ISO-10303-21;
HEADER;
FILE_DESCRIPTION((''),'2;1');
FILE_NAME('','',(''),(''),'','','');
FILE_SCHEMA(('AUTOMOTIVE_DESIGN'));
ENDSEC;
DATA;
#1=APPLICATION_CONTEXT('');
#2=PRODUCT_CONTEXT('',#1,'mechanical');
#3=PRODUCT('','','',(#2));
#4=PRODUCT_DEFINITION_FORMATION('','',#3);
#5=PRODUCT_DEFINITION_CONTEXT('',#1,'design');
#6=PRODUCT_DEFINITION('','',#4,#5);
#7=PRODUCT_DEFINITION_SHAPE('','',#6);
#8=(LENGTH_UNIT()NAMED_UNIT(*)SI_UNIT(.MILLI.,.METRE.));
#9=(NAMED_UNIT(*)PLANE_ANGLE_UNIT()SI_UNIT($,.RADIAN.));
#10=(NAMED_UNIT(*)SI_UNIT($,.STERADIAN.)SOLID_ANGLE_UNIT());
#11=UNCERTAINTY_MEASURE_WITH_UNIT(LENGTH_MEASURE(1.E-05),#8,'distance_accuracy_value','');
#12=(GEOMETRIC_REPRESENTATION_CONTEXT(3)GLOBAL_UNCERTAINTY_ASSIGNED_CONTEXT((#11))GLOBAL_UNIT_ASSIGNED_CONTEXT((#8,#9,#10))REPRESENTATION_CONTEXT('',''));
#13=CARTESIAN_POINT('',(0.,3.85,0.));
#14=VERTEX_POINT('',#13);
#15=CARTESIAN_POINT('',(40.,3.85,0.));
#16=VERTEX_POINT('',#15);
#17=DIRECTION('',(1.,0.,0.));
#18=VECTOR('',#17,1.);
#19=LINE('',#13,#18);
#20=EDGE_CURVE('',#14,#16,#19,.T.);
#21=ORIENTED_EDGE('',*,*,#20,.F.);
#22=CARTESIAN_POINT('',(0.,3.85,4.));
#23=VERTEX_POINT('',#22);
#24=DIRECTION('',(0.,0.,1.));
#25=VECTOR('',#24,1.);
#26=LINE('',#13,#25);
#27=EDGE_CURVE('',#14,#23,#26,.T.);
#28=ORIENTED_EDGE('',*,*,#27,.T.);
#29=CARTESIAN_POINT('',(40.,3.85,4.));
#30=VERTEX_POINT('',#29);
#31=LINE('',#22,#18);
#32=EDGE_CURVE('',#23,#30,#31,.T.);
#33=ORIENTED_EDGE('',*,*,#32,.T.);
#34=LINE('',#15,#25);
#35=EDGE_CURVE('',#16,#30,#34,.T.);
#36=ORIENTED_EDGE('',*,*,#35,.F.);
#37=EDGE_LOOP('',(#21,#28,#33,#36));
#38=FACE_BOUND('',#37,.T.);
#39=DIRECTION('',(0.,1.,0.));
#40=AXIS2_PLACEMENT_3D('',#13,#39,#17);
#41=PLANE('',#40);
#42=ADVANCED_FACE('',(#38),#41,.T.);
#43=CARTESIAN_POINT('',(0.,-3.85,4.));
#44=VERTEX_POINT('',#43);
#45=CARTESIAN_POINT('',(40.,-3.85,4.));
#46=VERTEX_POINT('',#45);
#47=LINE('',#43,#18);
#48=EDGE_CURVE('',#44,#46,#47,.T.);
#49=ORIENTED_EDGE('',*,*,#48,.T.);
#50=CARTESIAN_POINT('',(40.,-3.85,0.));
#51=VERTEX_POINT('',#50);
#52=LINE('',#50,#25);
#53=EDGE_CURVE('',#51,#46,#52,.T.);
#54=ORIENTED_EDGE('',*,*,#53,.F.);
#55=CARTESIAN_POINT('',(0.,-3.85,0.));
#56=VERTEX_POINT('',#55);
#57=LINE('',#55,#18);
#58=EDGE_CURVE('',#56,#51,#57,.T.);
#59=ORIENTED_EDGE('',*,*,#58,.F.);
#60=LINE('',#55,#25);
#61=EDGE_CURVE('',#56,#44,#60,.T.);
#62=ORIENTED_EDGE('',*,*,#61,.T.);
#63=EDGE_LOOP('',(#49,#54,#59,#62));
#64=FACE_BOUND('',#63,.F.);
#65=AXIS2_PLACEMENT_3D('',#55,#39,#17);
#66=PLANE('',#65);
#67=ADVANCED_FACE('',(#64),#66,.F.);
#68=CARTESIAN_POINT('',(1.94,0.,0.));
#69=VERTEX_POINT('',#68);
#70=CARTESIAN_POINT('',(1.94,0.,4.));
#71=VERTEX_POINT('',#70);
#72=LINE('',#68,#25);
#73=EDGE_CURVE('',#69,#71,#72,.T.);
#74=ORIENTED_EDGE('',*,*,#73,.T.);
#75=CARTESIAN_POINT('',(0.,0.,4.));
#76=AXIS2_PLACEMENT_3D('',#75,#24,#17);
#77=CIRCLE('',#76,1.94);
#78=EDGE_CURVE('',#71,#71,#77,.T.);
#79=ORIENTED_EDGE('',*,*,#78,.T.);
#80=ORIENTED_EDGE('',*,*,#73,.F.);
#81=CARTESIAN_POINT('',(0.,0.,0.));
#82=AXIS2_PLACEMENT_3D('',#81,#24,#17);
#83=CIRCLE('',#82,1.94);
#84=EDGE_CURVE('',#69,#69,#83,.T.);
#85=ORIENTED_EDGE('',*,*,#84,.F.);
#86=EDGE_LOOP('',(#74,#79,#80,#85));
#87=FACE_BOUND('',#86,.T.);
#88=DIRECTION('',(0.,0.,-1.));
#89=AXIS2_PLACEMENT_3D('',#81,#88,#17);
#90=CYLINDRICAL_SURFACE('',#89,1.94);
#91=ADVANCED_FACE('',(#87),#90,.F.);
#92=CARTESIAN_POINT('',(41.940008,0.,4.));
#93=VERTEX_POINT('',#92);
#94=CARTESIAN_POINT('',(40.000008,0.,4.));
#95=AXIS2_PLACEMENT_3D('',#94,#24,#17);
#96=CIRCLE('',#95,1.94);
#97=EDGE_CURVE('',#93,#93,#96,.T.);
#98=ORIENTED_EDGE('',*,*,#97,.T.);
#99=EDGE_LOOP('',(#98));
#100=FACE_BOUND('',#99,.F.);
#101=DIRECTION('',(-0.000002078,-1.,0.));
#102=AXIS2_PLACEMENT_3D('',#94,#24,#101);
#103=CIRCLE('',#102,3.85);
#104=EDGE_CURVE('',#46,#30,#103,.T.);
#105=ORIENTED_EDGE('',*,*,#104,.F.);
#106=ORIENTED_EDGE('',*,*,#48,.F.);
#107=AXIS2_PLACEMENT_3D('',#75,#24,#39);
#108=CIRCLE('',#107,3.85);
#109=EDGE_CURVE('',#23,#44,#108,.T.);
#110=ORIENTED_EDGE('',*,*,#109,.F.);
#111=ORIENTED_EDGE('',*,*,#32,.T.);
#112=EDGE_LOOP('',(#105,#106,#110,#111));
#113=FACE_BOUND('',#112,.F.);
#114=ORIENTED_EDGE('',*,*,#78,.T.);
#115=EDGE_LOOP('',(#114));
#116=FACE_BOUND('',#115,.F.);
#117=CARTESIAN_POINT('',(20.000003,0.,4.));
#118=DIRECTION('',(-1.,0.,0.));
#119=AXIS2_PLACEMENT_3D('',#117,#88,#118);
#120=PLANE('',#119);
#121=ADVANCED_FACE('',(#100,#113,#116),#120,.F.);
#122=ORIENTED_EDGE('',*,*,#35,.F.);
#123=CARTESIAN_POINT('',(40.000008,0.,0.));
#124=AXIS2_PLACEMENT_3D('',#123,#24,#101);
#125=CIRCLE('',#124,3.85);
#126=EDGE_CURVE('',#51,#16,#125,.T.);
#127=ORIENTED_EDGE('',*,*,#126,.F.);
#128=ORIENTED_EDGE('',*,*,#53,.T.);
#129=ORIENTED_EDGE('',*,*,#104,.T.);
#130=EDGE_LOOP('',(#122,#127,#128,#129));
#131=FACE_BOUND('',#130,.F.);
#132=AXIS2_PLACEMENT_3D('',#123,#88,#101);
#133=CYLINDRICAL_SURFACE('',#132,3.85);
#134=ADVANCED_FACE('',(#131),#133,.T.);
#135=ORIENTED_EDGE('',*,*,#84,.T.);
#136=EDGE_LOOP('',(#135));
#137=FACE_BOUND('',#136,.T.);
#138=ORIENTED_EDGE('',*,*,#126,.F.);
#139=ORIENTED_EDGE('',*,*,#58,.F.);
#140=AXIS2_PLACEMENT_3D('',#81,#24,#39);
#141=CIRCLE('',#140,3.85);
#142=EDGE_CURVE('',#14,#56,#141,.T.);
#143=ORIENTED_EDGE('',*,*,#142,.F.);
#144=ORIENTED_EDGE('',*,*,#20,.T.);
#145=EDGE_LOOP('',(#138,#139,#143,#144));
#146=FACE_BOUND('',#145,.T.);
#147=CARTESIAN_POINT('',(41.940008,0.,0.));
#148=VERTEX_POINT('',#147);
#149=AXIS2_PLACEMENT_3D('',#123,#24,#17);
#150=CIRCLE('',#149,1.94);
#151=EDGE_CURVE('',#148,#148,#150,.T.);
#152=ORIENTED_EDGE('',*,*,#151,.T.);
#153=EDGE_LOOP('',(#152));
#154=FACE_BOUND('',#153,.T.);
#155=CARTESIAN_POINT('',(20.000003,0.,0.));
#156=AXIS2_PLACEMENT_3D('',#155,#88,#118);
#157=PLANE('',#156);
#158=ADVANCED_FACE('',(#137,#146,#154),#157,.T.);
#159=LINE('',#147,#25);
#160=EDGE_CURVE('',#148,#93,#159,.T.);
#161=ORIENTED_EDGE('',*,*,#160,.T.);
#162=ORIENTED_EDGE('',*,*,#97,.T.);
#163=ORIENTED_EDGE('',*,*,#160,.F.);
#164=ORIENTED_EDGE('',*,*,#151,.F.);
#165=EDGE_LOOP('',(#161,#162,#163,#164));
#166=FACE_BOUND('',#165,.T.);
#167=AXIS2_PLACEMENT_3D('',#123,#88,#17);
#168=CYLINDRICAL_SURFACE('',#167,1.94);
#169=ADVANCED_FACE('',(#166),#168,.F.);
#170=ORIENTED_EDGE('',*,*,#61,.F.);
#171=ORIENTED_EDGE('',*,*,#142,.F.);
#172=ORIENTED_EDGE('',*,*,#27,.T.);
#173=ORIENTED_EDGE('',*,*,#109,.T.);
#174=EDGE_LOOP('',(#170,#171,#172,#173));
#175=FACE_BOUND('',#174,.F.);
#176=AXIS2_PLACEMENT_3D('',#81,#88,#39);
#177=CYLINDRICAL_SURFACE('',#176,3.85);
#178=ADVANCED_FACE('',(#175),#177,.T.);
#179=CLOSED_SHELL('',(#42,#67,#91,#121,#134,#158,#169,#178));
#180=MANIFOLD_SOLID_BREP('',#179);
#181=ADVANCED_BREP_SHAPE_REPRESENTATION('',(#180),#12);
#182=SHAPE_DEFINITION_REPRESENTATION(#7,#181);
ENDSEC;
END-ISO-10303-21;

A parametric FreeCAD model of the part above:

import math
import FreeCAD as App
import Part
import Sketcher
Q = App.Units.Quantity

doc = App.newDocument("Part")
body = doc.addObject("PartDesign::Body", "Body")

# Sketch on XY plane
sketch1 = doc.addObject("Sketcher::SketchObject", "Sketch")
body.addObject(sketch1)
sketch1.AttachmentSupport = (doc.XY_Plane, [""])
sketch1.MapMode = "FlatFace"
sketch1.addGeometry(Part.LineSegment(App.Vector(40, 3.9, 0), App.Vector(0, 3.9, 0)), False)
sketch1.addGeometry(Part.ArcOfCircle(Part.Circle(App.Vector(0, 0, 0), App.Vector(0, 0, 1), 3.9), math.radians(90), math.radians(270)), False)
sketch1.addGeometry(Part.LineSegment(App.Vector(0, -3.9, 0), App.Vector(40, -3.9, 0)), False)
sketch1.addGeometry(Part.ArcOfCircle(Part.Circle(App.Vector(40, 0, 0), App.Vector(0, 0, 1), 3.9), math.radians(-90), math.radians(90)), False)
sketch1.addGeometry(Part.Circle(App.Vector(40, 0, 0), App.Vector(0, 0, 1), 1.9), False)
sketch1.addGeometry(Part.Circle(App.Vector(0, 0, 0), App.Vector(0, 0, 1), 1.9), False)
sketch1.addConstraint(Sketcher.Constraint("Tangent", 0, 2, 1, 1))
sketch1.addConstraint(Sketcher.Constraint("Tangent", 1, 2, 2, 1))
sketch1.addConstraint(Sketcher.Constraint("Coincident", 2, 2, 3, 1))
sketch1.addConstraint(Sketcher.Constraint("Coincident", 3, 2, 0, 1))
sketch1.addConstraint(Sketcher.Constraint("Horizontal", 0))
sketch1.addConstraint(Sketcher.Constraint("Horizontal", 2))
sketch1.addConstraint(Sketcher.Constraint("Coincident", 1, 3, -1, 1))
sketch1.addConstraint(Sketcher.Constraint("Coincident", 5, 3, -1, 1))
sketch1.addConstraint(Sketcher.Constraint("Coincident", 4, 3, 3, 3))
sketch1.addConstraint(Sketcher.Constraint("Equal", 4, 5))
sketch1.addConstraint(Sketcher.Constraint("Vertical", 2, 2, 3, 2))
sketch1.addConstraint(Sketcher.Constraint("Diameter", 4, Q("3.88 mm")))
sketch1.addConstraint(Sketcher.Constraint("DistanceX", 0, 2, 0, 1, Q("40 mm")))
sketch1.addConstraint(Sketcher.Constraint("Radius", 1, Q("3.85 mm")))
sketch1.addConstraint(Sketcher.Constraint("DistanceX", -1, 1, 3, 3, Q("40.000008 mm")))
pad1 = doc.addObject("PartDesign::Pad", "Pad")
body.addObject(pad1)
pad1.Profile = sketch1
pad1.Length = 4

doc.recompute()
